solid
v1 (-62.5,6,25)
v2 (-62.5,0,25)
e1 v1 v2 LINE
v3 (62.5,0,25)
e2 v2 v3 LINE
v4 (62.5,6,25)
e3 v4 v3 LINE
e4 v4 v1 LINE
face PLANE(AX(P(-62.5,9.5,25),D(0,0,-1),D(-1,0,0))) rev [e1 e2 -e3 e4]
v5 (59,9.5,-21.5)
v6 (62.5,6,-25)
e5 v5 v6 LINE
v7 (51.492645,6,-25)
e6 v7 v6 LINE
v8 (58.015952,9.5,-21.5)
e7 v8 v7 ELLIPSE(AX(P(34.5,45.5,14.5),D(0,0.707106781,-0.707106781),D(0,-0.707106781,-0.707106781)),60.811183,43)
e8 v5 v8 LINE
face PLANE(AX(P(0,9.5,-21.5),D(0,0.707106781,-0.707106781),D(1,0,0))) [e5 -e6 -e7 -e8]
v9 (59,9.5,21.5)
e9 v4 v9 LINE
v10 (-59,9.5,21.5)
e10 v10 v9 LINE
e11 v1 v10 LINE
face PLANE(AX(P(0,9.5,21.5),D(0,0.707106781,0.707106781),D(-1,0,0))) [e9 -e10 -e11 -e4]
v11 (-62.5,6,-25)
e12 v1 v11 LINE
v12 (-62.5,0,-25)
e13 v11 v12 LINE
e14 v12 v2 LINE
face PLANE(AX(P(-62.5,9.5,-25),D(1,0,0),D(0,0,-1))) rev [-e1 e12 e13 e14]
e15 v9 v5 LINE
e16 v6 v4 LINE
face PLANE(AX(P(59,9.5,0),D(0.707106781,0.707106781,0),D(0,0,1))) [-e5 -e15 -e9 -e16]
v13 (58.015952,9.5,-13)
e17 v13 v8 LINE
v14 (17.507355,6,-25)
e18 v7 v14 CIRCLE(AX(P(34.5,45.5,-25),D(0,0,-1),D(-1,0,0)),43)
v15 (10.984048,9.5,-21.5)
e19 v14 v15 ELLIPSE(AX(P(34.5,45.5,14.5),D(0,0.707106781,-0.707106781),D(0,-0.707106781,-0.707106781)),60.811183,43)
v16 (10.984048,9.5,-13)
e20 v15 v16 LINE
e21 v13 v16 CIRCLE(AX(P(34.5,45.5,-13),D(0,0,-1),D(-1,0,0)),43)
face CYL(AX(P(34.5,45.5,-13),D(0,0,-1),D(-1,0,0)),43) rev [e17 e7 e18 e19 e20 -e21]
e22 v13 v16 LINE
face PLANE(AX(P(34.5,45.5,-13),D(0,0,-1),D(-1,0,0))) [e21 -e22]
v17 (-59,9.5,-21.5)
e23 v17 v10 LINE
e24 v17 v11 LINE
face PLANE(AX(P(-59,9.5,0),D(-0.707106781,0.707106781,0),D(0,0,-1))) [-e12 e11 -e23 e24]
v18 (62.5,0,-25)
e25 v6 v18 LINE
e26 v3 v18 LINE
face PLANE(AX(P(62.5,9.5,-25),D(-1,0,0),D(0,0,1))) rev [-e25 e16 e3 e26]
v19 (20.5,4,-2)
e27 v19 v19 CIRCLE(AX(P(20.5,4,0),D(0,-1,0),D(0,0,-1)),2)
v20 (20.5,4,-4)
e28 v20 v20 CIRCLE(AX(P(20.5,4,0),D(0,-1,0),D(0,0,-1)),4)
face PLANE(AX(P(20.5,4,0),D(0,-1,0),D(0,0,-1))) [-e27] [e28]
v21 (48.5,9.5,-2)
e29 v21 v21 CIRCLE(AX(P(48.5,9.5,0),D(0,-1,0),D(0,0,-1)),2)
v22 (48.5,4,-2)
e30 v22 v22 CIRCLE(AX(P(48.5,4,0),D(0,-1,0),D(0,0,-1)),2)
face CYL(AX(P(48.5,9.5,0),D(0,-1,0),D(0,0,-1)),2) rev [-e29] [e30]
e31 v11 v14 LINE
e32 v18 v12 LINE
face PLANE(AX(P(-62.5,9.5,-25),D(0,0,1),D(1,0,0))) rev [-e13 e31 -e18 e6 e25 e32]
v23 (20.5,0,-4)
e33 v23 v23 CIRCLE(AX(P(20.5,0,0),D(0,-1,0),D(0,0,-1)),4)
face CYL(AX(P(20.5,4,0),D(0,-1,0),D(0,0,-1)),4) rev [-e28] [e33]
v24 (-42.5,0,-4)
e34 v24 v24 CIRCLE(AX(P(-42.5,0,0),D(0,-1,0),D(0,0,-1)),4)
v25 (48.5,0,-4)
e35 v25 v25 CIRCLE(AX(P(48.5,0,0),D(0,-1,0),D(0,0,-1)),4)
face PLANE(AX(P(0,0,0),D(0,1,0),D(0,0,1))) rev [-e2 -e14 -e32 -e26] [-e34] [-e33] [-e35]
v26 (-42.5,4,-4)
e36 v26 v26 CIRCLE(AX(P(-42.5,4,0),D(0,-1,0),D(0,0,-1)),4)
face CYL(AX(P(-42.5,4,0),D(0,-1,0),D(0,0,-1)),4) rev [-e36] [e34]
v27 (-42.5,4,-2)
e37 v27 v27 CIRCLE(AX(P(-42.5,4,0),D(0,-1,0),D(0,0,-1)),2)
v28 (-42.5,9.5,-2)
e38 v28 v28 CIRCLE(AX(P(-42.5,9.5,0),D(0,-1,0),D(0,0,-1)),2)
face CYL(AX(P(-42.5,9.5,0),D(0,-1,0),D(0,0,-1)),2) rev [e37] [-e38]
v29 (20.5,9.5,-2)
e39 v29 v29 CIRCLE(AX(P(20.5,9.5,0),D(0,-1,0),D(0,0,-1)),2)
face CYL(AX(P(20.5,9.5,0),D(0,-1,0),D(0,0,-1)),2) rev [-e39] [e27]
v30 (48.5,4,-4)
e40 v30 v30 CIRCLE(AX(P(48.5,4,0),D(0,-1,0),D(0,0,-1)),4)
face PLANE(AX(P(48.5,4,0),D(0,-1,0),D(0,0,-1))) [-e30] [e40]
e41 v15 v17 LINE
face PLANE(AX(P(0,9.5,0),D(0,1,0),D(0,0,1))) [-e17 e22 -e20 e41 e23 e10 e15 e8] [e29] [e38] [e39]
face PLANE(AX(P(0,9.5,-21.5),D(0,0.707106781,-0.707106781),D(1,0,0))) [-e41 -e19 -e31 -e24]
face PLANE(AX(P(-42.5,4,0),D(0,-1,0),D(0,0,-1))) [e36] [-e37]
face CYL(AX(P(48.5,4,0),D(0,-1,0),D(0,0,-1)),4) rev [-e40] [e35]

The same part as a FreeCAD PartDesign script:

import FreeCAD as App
import Part
import Sketcher
Q = App.Units.Quantity


def edges_at(feature, points):
    """Names of the edges that pass closest to the given points."""
    edges = feature.Shape.Edges
    near = lambda p: min(range(len(edges)), key=lambda i: edges[i].distToShape(Part.Vertex(*p))[0])
    return sorted({f"Edge{near(p) + 1}" for p in points})


def add_polygon(sketch, points):
    """Adds a closed chain of lines whose ends are joined by coincident constraints."""
    first, n = sketch.GeometryCount, len(points)
    for a, b in zip(points, points[1:] + points[:1]):
        sketch.addGeometry(Part.LineSegment(App.Vector(*a, 0), App.Vector(*b, 0)), False)
    for i in range(n):
        sketch.addConstraint(Sketcher.Constraint("Coincident", first + i, 2, first + (i + 1) % n, 1))

doc = App.newDocument("Part")
body = doc.addObject("PartDesign::Body", "Body")

sketch1 = body.newObject("Sketcher::SketchObject", "Sketch")
sketch1.AttachmentSupport = (doc.getObject("XZ_Plane"), [""])
sketch1.MapMode = "FlatFace"
add_polygon(sketch1, [(-62, -25), (-62, 25), (62, 25), (62, -25)])
sketch1.addConstraint(Sketcher.Constraint("Vertical", 0))
sketch1.addConstraint(Sketcher.Constraint("Horizontal", 1))
sketch1.addConstraint(Sketcher.Constraint("Vertical", 2))
sketch1.addConstraint(Sketcher.Constraint("Horizontal", 3))
sketch1.addConstraint(Sketcher.Constraint("Symmetric", 0, 2, 2, 2, -1, 1))
sketch1.addConstraint(Sketcher.Constraint("DistanceX", 1, 1, 1, 2, Q("125 mm")))
sketch1.addConstraint(Sketcher.Constraint("DistanceY", 0, 1, 0, 2, Q("50 mm")))
pad1 = body.newObject("PartDesign::Pad", "Pad")
pad1.Profile = sketch1
pad1.Length = 9.5
pad1.Reversed = True
doc.recompute()

chamfer = body.newObject("PartDesign::Chamfer", "Chamfer")
chamfer.Base = (pad1, edges_at(pad1, [
    (-62.5, 9.5, 0),
    (0, 9.5, 25),
    (62.5, 9.5, 0),
    (0, 9.5, -25),
]))
chamfer.Size = 3.5

sketch2 = body.newObject("Sketcher::SketchObject", "Sketch001")
sketch2.AttachmentSupport = (doc.getObject("XZ_Plane"), [""])
sketch2.MapMode = "FlatFace"
sketch2.addGeometry(Part.Circle(App.Vector(-42.5, 0, 0), App.Vector(0, 0, 1), 4), False)
sketch2.addGeometry(Part.Circle(App.Vector(20.5, 0, 0), App.Vector(0, 0, 1), 4), False)
sketch2.addGeometry(Part.Circle(App.Vector(48.5, 0, 0), App.Vector(0, 0, 1), 4), False)
sketch2.addConstraint(Sketcher.Constraint("Equal", 0, 1))
sketch2.addConstraint(Sketcher.Constraint("Equal", 1, 2))
sketch2.addConstraint(Sketcher.Constraint("PointOnObject", 0, 3, -1))
sketch2.addConstraint(Sketcher.Constraint("PointOnObject", 1, 3, -1))
sketch2.addConstraint(Sketcher.Constraint("PointOnObject", 2, 3, -1))
sketch2.addConstraint(Sketcher.Constraint("Diameter", 0, Q("8 mm")))
sketch2.addConstraint(Sketcher.Constraint("DistanceX", 0, 3, 1, 3, Q("63 mm")))
sketch2.addConstraint(Sketcher.Constraint("DistanceX", 1, 3, 2, 3, Q("28 mm")))
sketch2.addConstraint(Sketcher.Constraint("DistanceX", 0, 3, -1, 1, Q("42.5 mm")))
pocket1 = body.newObject("PartDesign::Pocket", "Pocket")
pocket1.Profile = sketch2
pocket1.Length = 4

sketch3 = body.newObject("Sketcher::SketchObject", "Sketch002")
sketch3.AttachmentSupport = (doc.getObject("XZ_Plane"), [""])
sketch3.MapMode = "FlatFace"
sketch3.AttachmentOffset = App.Placement(App.Vector(0, 0, -4), App.Rotation())
sketch3.addGeometry(Part.Circle(App.Vector(-42.5, 0, 0), App.Vector(0, 0, 1), 2), False)
sketch3.addGeometry(Part.Circle(App.Vector(20.5, 0, 0), App.Vector(0, 0, 1), 2), False)
sketch3.addGeometry(Part.Circle(App.Vector(48.5, 0, 0), App.Vector(0, 0, 1), 2), False)
sketch3.addConstraint(Sketcher.Constraint("Equal", 0, 1))
sketch3.addConstraint(Sketcher.Constraint("Equal", 1, 2))
sketch3.addConstraint(Sketcher.Constraint("PointOnObject", 0, 3, -1))
sketch3.addConstraint(Sketcher.Constraint("PointOnObject", 1, 3, -1))
sketch3.addConstraint(Sketcher.Constraint("PointOnObject", 2, 3, -1))
sketch3.addConstraint(Sketcher.Constraint("Diameter", 0, Q("4 mm")))
sketch3.addConstraint(Sketcher.Constraint("DistanceX", 0, 3, 1, 3, Q("63 mm")))
sketch3.addConstraint(Sketcher.Constraint("DistanceX", 1, 3, 2, 3, Q("28 mm")))
sketch3.addConstraint(Sketcher.Constraint("DistanceX", 0, 3, -1, 1, Q("42.5 mm")))
pocket2 = body.newObject("PartDesign::Pocket", "Pocket001")
pocket2.Profile = sketch3
pocket2.Type = "ThroughAll"

sketch4 = body.newObject("Sketcher::SketchObject", "Sketch003")
sketch4.AttachmentSupport = (doc.getObject("XY_Plane"), [""])
sketch4.MapMode = "FlatFace"
sketch4.AttachmentOffset = App.Placement(App.Vector(0, 0, -25), App.Rotation())
sketch4.addGeometry(Part.Circle(App.Vector(34, 46, 0), App.Vector(0, 0, 1), 43), False)
sketch4.addConstraint(Sketcher.Constraint("Diameter", 0, Q("86 mm")))
sketch4.addConstraint(Sketcher.Constraint("DistanceX", -1, 1, 0, 3, Q("34.5 mm")))
sketch4.addConstraint(Sketcher.Constraint("DistanceY", -1, 1, 0, 3, Q("45.5 mm")))
pocket3 = body.newObject("PartDesign::Pocket", "Pocket002")
pocket3.Profile = sketch4
pocket3.Length = 12
pocket3.Reversed = True

doc.recompute()
